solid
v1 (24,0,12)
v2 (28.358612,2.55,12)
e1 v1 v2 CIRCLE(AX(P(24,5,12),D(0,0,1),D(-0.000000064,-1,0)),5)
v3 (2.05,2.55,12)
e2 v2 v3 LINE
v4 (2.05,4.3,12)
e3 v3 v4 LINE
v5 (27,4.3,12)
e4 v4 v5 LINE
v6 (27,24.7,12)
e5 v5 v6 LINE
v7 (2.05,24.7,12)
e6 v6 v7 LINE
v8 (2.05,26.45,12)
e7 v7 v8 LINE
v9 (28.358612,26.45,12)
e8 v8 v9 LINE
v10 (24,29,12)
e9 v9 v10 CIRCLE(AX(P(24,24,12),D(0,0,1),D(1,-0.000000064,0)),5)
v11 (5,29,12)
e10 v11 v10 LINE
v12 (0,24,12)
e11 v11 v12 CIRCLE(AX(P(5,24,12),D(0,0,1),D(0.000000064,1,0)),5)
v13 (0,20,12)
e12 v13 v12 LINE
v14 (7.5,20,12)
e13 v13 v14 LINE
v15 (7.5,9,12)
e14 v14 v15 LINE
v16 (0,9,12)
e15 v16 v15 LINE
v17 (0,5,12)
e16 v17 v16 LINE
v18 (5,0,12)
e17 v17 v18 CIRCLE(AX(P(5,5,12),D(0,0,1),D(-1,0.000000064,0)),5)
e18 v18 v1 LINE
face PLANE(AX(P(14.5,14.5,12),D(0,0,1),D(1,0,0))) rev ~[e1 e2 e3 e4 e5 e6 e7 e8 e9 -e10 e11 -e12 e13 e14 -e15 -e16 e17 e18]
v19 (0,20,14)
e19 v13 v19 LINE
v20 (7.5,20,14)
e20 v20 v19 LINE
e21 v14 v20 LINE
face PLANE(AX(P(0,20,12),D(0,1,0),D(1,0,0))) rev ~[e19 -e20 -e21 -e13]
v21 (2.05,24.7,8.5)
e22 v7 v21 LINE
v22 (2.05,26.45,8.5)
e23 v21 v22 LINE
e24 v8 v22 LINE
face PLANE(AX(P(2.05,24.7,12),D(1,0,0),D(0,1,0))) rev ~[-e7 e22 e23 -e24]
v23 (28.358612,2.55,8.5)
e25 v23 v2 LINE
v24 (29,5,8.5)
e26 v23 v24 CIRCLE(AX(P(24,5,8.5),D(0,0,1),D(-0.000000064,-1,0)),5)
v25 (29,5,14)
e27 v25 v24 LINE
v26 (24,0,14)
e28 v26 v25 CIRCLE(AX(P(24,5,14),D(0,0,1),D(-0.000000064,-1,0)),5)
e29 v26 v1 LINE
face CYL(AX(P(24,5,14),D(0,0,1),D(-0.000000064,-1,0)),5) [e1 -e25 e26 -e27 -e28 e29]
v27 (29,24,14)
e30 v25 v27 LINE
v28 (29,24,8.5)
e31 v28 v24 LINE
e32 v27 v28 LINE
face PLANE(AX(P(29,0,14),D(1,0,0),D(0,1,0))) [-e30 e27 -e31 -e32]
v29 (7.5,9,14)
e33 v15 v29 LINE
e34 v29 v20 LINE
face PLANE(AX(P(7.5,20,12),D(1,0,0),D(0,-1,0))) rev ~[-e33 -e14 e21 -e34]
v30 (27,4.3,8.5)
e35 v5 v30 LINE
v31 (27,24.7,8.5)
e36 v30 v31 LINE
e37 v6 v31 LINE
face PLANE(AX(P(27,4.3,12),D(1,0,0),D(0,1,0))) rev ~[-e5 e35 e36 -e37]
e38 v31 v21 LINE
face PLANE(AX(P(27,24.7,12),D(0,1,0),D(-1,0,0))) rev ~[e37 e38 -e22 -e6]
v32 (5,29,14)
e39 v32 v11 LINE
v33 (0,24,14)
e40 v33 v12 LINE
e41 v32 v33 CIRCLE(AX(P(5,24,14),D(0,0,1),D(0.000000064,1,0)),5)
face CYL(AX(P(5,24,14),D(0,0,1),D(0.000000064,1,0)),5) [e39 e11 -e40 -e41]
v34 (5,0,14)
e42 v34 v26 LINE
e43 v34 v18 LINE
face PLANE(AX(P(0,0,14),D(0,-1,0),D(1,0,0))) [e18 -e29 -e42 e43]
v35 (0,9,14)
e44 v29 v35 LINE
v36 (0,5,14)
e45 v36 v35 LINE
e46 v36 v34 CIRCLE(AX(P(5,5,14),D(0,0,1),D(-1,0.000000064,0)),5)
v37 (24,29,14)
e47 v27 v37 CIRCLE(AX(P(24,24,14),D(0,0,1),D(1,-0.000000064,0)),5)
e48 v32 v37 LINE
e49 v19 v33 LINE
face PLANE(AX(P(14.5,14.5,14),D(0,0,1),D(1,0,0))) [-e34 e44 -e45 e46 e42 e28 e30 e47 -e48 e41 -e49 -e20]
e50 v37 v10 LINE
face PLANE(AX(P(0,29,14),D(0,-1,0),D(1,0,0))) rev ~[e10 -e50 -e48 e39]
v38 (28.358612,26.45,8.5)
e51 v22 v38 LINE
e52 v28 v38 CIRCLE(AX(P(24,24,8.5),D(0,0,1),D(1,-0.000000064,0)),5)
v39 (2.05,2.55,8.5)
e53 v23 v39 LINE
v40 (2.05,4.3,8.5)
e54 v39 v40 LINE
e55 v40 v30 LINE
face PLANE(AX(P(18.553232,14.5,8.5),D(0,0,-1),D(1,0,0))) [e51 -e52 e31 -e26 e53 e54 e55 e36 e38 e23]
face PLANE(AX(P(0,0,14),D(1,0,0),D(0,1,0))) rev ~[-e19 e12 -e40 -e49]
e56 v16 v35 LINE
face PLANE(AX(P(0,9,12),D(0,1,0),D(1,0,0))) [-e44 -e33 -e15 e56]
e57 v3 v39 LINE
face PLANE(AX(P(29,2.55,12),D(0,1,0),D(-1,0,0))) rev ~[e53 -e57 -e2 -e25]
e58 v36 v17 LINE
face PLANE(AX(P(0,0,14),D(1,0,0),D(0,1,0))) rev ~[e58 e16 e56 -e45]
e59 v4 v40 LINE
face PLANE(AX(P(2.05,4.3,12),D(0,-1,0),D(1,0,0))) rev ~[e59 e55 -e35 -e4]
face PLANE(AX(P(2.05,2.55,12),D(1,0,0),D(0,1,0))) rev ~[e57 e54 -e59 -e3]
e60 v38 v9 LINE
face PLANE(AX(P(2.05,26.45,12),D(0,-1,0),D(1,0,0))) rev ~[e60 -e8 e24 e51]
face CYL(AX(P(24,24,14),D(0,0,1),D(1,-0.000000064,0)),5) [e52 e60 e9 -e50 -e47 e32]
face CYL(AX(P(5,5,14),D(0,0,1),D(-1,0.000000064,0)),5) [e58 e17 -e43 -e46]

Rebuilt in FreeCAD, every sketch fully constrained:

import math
import FreeCAD as App
import Part
import Sketcher

V = App.Vector
Q = App.Units.Quantity

doc = App.newDocument("Part")
body = doc.addObject("PartDesign::Body", "Body")

# Sketch on XY plane
sketch1 = body.newObject("Sketcher::SketchObject", "Sketch")
sketch1.AttachmentSupport = (doc.getObject("XY_Plane"), [""])
sketch1.MapMode = "FlatFace"
sketch1.addGeometry([
    Part.LineSegment(V(0, 29, 0), V(0, 0, 0)),
    Part.LineSegment(V(0, 0, 0), V(29, 0, 0)),
    Part.LineSegment(V(29, 0, 0), V(29, 29, 0)),
    Part.LineSegment(V(29, 29, 0), V(0, 29, 0)),
], False)
sketch1.addConstraint([
    Sketcher.Constraint("Coincident", 0, 2, 1, 1),
    Sketcher.Constraint("Coincident", 1, 2, 2, 1),
    Sketcher.Constraint("Coincident", 2, 2, 3, 1),
    Sketcher.Constraint("Coincident", 3, 2, 0, 1),
    Sketcher.Constraint("Vertical", 0),
    Sketcher.Constraint("Horizontal", 1),
    Sketcher.Constraint("Vertical", 2),
    Sketcher.Constraint("Horizontal", 3),
    Sketcher.Constraint("Coincident", 0, 2, -1, 1),
    Sketcher.Constraint("Equal", 3, 0),
    Sketcher.Constraint("DistanceX", 1, 1, 1, 2, Q("29 mm")),
])
pad1 = body.newObject("PartDesign::Pad", "Pad")
pad1.Profile = sketch1
pad1.Length = 2
pad1.Reversed = True

# Sketch on XY plane
sketch2 = body.newObject("Sketcher::SketchObject", "Sketch001")
sketch2.AttachmentSupport = (doc.getObject("XY_Plane"), [""])
sketch2.MapMode = "FlatFace"
sketch2.AttachmentOffset = App.Placement(V(0, 0, -2), App.Rotation())
sketch2.addGeometry([
    Part.LineSegment(V(2, 26.4, 0), V(29, 26.4, 0)),  # 0
    Part.LineSegment(V(29, 26.4, 0), V(29, 2.5, 0)),  # 1
    Part.LineSegment(V(29, 2.5, 0), V(2, 2.5, 0)),  # 2
    Part.LineSegment(V(2, 2.5, 0), V(2, 4.3, 0)),  # 3
    Part.LineSegment(V(2, 4.3, 0), V(27, 4.3, 0)),  # 4
    Part.LineSegment(V(27, 4.3, 0), V(27, 24.7, 0)),  # 5
    Part.LineSegment(V(27, 24.7, 0), V(2, 24.7, 0)),  # 6
    Part.LineSegment(V(2, 24.7, 0), V(2, 26.4, 0)),  # 7
], False)
sketch2.addConstraint([
    Sketcher.Constraint("Coincident", 0, 2, 1, 1),
    Sketcher.Constraint("Coincident", 1, 2, 2, 1),
    Sketcher.Constraint("Coincident", 2, 2, 3, 1),
    Sketcher.Constraint("Coincident", 3, 2, 4, 1),
    Sketcher.Constraint("Coincident", 4, 2, 5, 1),
    Sketcher.Constraint("Coincident", 5, 2, 6, 1),
    Sketcher.Constraint("Coincident", 6, 2, 7, 1),
    Sketcher.Constraint("Coincident", 7, 2, 0, 1),
    Sketcher.Constraint("Horizontal", 0),
    Sketcher.Constraint("Vertical", 1),
    Sketcher.Constraint("Horizontal", 2),
    Sketcher.Constraint("Vertical", 3),
    Sketcher.Constraint("Horizontal", 4),
    Sketcher.Constraint("Vertical", 5),
    Sketcher.Constraint("Horizontal", 6),
    Sketcher.Constraint("Vertical", 7),
    Sketcher.Constraint("Vertical", 3, 2, 6, 2),
    Sketcher.Constraint("Equal", 3, 7),
    Sketcher.Constraint("DistanceY", 1, 2, 1, 1, Q("23.9 mm")),
    Sketcher.Constraint("DistanceY", 5, 1, 5, 2, Q("20.4 mm")),
    Sketcher.Constraint("DistanceX", -1, 1, 0, 2, Q("29 mm")),
    Sketcher.Constraint("DistanceX", -1, 1, 4, 2, Q("27 mm")),
    Sketcher.Constraint("DistanceX", 0, 1, 0, 2, Q("26.95 mm")),
    Sketcher.Constraint("DistanceY", -1, 1, 3, 2, Q("4.3 mm")),
])
pad2 = body.newObject("PartDesign::Pad", "Pad001")
pad2.Profile = sketch2
pad2.Length = 3.5
pad2.Reversed = True

# Sketch on XY plane
sketch3 = body.newObject("Sketcher::SketchObject", "Sketch002")
sketch3.AttachmentSupport = (doc.getObject("XY_Plane"), [""])
sketch3.MapMode = "FlatFace"
sketch3.AttachmentOffset = App.Placement(V(0, 0, -2), App.Rotation())
sketch3.addGeometry([
    Part.LineSegment(V(0, 9, 0), V(0, 20, 0)),
    Part.LineSegment(V(0, 20, 0), V(8, 20, 0)),
    Part.LineSegment(V(8, 20, 0), V(8, 9, 0)),
    Part.LineSegment(V(8, 9, 0), V(0, 9, 0)),
], False)
sketch3.addConstraint([
    Sketcher.Constraint("Coincident", 0, 2, 1, 1),
    Sketcher.Constraint("Coincident", 1, 2, 2, 1),
    Sketcher.Constraint("Coincident", 2, 2, 3, 1),
    Sketcher.Constraint("Coincident", 3, 2, 0, 1),
    Sketcher.Constraint("Vertical", 0),
    Sketcher.Constraint("Horizontal", 1),
    Sketcher.Constraint("Vertical", 2),
    Sketcher.Constraint("Horizontal", 3),
    Sketcher.Constraint("PointOnObject", 0, 2, -2),
    Sketcher.Constraint("DistanceY", 0, 1, 0, 2, Q("11 mm")),
    Sketcher.Constraint("DistanceX", 1, 1, 1, 2, Q("7.5 mm")),
    Sketcher.Constraint("DistanceY", -1, 1, 0, 2, Q("20 mm")),
])
pocket1 = body.newObject("PartDesign::Pocket", "Pocket")
pocket1.Profile = sketch3
pocket1.Type = "ThroughAll"
pocket1.Reversed = True

# Sketch on XY plane
sketch4 = body.newObject("Sketcher::SketchObject", "Sketch003")
sketch4.AttachmentSupport = (doc.getObject("XY_Plane"), [""])
sketch4.MapMode = "FlatFace"
sketch4.addGeometry([
    Part.ArcOfCircle(Part.Circle(V(5, 24, 0), V(0, 0, 1), 5), math.radians(90), math.radians(180)),  # 0
    Part.LineSegment(V(5, 29, 0), V(0, 29, 0)),  # 1
    Part.LineSegment(V(0, 29, 0), V(0, 24, 0)),  # 2
    Part.LineSegment(V(29, 24, 0), V(29, 29, 0)),  # 3
    Part.LineSegment(V(29, 29, 0), V(24, 29, 0)),  # 4
    Part.ArcOfCircle(Part.Circle(V(24, 24, 0), V(0, 0, 1), 5), math.radians(0), math.radians(90)),  # 5
    Part.LineSegment(V(24, 0, 0), V(29, 0, 0)),  # 6
    Part.LineSegment(V(29, 0, 0), V(29, 5, 0)),  # 7
    Part.ArcOfCircle(Part.Circle(V(24, 5, 0), V(0, 0, 1), 5), math.radians(-90), math.radians(0)),  # 8
    Part.LineSegment(V(0, 0, 0), V(5, 0, 0)),  # 9
    Part.ArcOfCircle(Part.Circle(V(5, 5, 0), V(0, 0, 1), 5), math.radians(180), math.radians(270)),  # 10
    Part.LineSegment(V(0, 5, 0), V(0, 0, 0)),  # 11
], False)
sketch4.addConstraint([
    Sketcher.Constraint("Tangent", 0, 1, 1, 1),
    Sketcher.Constraint("Coincident", 1, 2, 2, 1),
    Sketcher.Constraint("Tangent", 2, 2, 0, 2),
    Sketcher.Constraint("Coincident", 3, 2, 4, 1),
    Sketcher.Constraint("Tangent", 4, 2, 5, 2),
    Sketcher.Constraint("Tangent", 5, 1, 3, 1),
    Sketcher.Constraint("Coincident", 6, 2, 7, 1),
    Sketcher.Constraint("Tangent", 7, 2, 8, 2),
    Sketcher.Constraint("Tangent", 8, 1, 6, 1),
    Sketcher.Constraint("Tangent", 9, 2, 10, 2),
    Sketcher.Constraint("Tangent", 10, 1, 11, 1),
    Sketcher.Constraint("Coincident", 11, 2, 9, 1),
    Sketcher.Constraint("Horizontal", 1),
    Sketcher.Constraint("Vertical", 2),
    Sketcher.Constraint("Vertical", 3),
    Sketcher.Constraint("Horizontal", 4),
    Sketcher.Constraint("Horizontal", 6),
    Sketcher.Constraint("Vertical", 7),
    Sketcher.Constraint("Horizontal", 9),
    Sketcher.Constraint("Vertical", 11),
    Sketcher.Constraint("Coincident", 11, 2, -1, 1),
    Sketcher.Constraint("Equal", 0, 5),
    Sketcher.Constraint("Equal", 5, 8),
    Sketcher.Constraint("Equal", 8, 10),
    Sketcher.Constraint("PointOnObject", 1, 2, -2),
    Sketcher.Constraint("PointOnObject", 6, 2, -1),
    Sketcher.Constraint("Horizontal", 0, 3, 5, 3),
    Sketcher.Constraint("Vertical", 5, 3, 8, 3),
    Sketcher.Constraint("Radius", 0, Q("5 mm")),
    Sketcher.Constraint("DistanceY", -1, 1, 0, 3, Q("24 mm")),
    Sketcher.Constraint("DistanceX", -1, 1, 5, 3, Q("24 mm")),
])
pocket2 = body.newObject("PartDesign::Pocket", "Pocket001")
pocket2.Profile = sketch4
pocket2.Type = "ThroughAll"
body2 = doc.addObject("PartDesign::Body", "Body001")
doc.recompute()

body.Placement = App.Placement(V(0, 0, 14), App.Rotation(V(0, 0, 1), 0))
boolean = body2.newObject("PartDesign::Boolean", "Boolean")
boolean.Type = "Fuse"
boolean.addObjects([body])

doc.recompute()
